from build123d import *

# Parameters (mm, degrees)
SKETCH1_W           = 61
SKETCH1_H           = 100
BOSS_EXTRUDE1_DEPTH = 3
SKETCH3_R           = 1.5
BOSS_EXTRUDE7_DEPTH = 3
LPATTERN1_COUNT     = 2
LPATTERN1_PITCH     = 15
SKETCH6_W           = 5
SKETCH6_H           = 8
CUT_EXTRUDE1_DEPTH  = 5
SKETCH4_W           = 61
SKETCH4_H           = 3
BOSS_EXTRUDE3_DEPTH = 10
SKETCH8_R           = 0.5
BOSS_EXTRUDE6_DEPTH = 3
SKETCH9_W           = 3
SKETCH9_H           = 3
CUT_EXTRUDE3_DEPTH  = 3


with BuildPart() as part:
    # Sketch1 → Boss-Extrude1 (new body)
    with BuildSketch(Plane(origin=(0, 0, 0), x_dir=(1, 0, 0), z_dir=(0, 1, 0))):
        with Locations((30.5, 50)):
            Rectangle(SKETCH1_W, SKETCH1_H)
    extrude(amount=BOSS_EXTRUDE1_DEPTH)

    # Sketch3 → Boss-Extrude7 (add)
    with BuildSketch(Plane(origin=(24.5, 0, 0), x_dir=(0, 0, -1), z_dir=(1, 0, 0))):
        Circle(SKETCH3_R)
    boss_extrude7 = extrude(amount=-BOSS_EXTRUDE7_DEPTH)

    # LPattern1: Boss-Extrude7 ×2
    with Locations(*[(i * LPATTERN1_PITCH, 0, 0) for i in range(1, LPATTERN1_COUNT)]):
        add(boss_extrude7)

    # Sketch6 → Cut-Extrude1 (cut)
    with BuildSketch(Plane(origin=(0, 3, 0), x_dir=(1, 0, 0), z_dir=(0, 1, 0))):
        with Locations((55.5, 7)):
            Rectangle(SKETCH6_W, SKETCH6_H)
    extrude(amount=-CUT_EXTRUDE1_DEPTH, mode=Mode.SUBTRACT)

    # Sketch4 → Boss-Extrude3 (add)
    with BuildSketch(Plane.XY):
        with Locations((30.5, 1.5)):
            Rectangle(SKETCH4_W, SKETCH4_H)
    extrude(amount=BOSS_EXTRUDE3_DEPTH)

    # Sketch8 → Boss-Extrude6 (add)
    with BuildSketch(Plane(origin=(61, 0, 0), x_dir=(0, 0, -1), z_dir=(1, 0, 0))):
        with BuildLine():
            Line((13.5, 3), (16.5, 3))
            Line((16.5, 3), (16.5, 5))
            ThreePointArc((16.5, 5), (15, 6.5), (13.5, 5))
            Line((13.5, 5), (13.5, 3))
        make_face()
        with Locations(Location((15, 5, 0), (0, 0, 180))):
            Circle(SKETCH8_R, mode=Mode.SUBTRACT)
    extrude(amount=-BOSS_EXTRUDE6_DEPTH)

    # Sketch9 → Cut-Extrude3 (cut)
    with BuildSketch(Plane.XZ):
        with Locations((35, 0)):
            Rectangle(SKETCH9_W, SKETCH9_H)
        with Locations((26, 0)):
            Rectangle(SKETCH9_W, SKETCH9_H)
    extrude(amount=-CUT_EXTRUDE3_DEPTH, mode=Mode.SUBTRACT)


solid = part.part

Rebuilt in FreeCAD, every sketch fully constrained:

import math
import FreeCAD as App
import Part
import Sketcher
Q = App.Units.Quantity


def add_polygon(sketch, points):
    """Adds a closed chain of lines whose ends are joined by coincident constraints."""
    first, n = sketch.GeometryCount, len(points)
    for a, b in zip(points, points[1:] + points[:1]):
        sketch.addGeometry(Part.LineSegment(App.Vector(*a, 0), App.Vector(*b, 0)), False)
    for i in range(n):
        sketch.addConstraint(Sketcher.Constraint("Coincident", first + i, 2, first + (i + 1) % n, 1))

doc = App.newDocument("Part")
body = doc.addObject("PartDesign::Body", "Body")

# Sketch on XZ plane
sketch1 = doc.addObject("Sketcher::SketchObject", "Sketch")
body.addObject(sketch1)
sketch1.AttachmentSupport = (doc.XZ_Plane, [""])
sketch1.MapMode = "FlatFace"
add_polygon(sketch1, [(0, -100), (0, 0), (61, 0), (61, -100)])  # lines 0-3
sketch1.addConstraint(Sketcher.Constraint("Vertical", 0))
sketch1.addConstraint(Sketcher.Constraint("Horizontal", 1))
sketch1.addConstraint(Sketcher.Constraint("Vertical", 2))
sketch1.addConstraint(Sketcher.Constraint("Horizontal", 3))
sketch1.addConstraint(Sketcher.Constraint("Coincident", 0, 2, -1, 1))
sketch1.addConstraint(Sketcher.Constraint("DistanceX", 1, 1, 1, 2, Q("61 mm")))
sketch1.addConstraint(Sketcher.Constraint("DistanceY", 0, 1, 0, 2, Q("100 mm")))
pad1 = doc.addObject("PartDesign::Pad", "Pad")
body.addObject(pad1)
pad1.Profile = sketch1
pad1.Length = 3
pad1.Reversed = True

# Sketch on YZ plane
sketch2 = doc.addObject("Sketcher::SketchObject", "Sketch001")
body.addObject(sketch2)
sketch2.AttachmentSupport = (doc.YZ_Plane, [""])
sketch2.MapMode = "FlatFace"
sketch2.AttachmentOffset = App.Placement(App.Vector(0, 0, 24.5), App.Rotation())
sketch2.addGeometry(Part.Circle(App.Vector(0, 0, 0), App.Vector(0, 0, 1), 1.5), False)
sketch2.addConstraint(Sketcher.Constraint("Coincident", 0, 3, -1, 1))
sketch2.addConstraint(Sketcher.Constraint("Diameter", 0, Q("3 mm")))
pad2 = doc.addObject("PartDesign::Pad", "Pad001")
body.addObject(pad2)
pad2.Profile = sketch2
pad2.Length = 3
pad2.Reversed = True
doc.recompute()

linearpattern = doc.addObject("PartDesign::LinearPattern", "LinearPattern")
body.addObject(linearpattern)
linearpattern.Originals = [pad2]
linearpattern.Direction = (doc.X_Axis, [""])
linearpattern.Mode = "offset"
linearpattern.Offset = 15
linearpattern.Occurrences = 2
body.Tip = linearpattern

# Sketch on XZ plane
sketch3 = doc.addObject("Sketcher::SketchObject", "Sketch002")
body.addObject(sketch3)
sketch3.AttachmentSupport = (doc.XZ_Plane, [""])
sketch3.MapMode = "FlatFace"
sketch3.AttachmentOffset = App.Placement(App.Vector(0, 0, -3), App.Rotation())
add_polygon(sketch3, [(53, -11), (53, -3), (58, -3), (58, -11)])  # lines 0-3
sketch3.addConstraint(Sketcher.Constraint("Vertical", 0))
sketch3.addConstraint(Sketcher.Constraint("Horizontal", 1))
sketch3.addConstraint(Sketcher.Constraint("Vertical", 2))
sketch3.addConstraint(Sketcher.Constraint("Horizontal", 3))
sketch3.addConstraint(Sketcher.Constraint("DistanceX", 1, 1, 1, 2, Q("5 mm")))
sketch3.addConstraint(Sketcher.Constraint("DistanceY", 0, 1, 0, 2, Q("8 mm")))
sketch3.addConstraint(Sketcher.Constraint("DistanceX", -1, 1, 0, 2, Q("53 mm")))
sketch3.addConstraint(Sketcher.Constraint("DistanceY", 0, 2, -1, 1, Q("3 mm")))
pocket1 = doc.addObject("PartDesign::Pocket", "Pocket")
body.addObject(pocket1)
pocket1.Profile = sketch3
pocket1.Length = 5
pocket1.Reversed = True

# Sketch on XY plane
sketch4 = doc.addObject("Sketcher::SketchObject", "Sketch003")
body.addObject(sketch4)
sketch4.AttachmentSupport = (doc.XY_Plane, [""])
sketch4.MapMode = "FlatFace"
add_polygon(sketch4, [(0, 3), (0, 0), (61, 0), (61, 3)])  # lines 0-3
sketch4.addConstraint(Sketcher.Constraint("Vertical", 0))
sketch4.addConstraint(Sketcher.Constraint("Horizontal", 1))
sketch4.addConstraint(Sketcher.Constraint("Vertical", 2))
sketch4.addConstraint(Sketcher.Constraint("Horizontal", 3))
sketch4.addConstraint(Sketcher.Constraint("Coincident", 0, 2, -1, 1))
sketch4.addConstraint(Sketcher.Constraint("DistanceX", 1, 1, 1, 2, Q("61 mm")))
sketch4.addConstraint(Sketcher.Constraint("DistanceY", 0, 2, 0, 1, Q("3 mm")))
pad3 = doc.addObject("PartDesign::Pad", "Pad002")
body.addObject(pad3)
pad3.Profile = sketch4
pad3.Length = 10

# Sketch on YZ plane
sketch5 = doc.addObject("Sketcher::SketchObject", "Sketch004")
body.addObject(sketch5)
sketch5.AttachmentSupport = (doc.YZ_Plane, [""])
sketch5.MapMode = "FlatFace"
sketch5.AttachmentOffset = App.Placement(App.Vector(0, 0, 61), App.Rotation())
sketch5.addGeometry(Part.LineSegment(App.Vector(3, -13.5, 0), App.Vector(3, -16.5, 0)), False)
sketch5.addGeometry(Part.LineSegment(App.Vector(3, -16.5, 0), App.Vector(5, -16.5, 0)), False)
sketch5.addGeometry(Part.ArcOfCircle(Part.Circle(App.Vector(5, -15, 0), App.Vector(0, 0, 1), 1.5), math.radians(-90), math.radians(90)), False)
sketch5.addGeometry(Part.LineSegment(App.Vector(5, -13.5, 0), App.Vector(3, -13.5, 0)), False)
sketch5.addGeometry(Part.Circle(App.Vector(5, -15, 0), App.Vector(0, 0, 1), 0.5), False)
sketch5.addConstraint(Sketcher.Constraint("Coincident", 0, 2, 1, 1))
sketch5.addConstraint(Sketcher.Constraint("Tangent", 1, 2, 2, 1))
sketch5.addConstraint(Sketcher.Constraint("Tangent", 2, 2, 3, 1))
sketch5.addConstraint(Sketcher.Constraint("Coincident", 3, 2, 0, 1))
sketch5.addConstraint(Sketcher.Constraint("Vertical", 0))
sketch5.addConstraint(Sketcher.Constraint("Horizontal", 1))
sketch5.addConstraint(Sketcher.Constraint("Horizontal", 3))
sketch5.addConstraint(Sketcher.Constraint("Coincident", 4, 3, 2, 3))
sketch5.addConstraint(Sketcher.Constraint("Diameter", 4, Q("1 mm")))
sketch5.addConstraint(Sketcher.Constraint("Radius", 2, Q("1.5 mm")))
sketch5.addConstraint(Sketcher.Constraint("DistanceX", 1, 1, 1, 2, Q("2 mm")))
sketch5.addConstraint(Sketcher.Constraint("DistanceX", -1, 1, 2, 3, Q("5 mm")))
sketch5.addConstraint(Sketcher.Constraint("DistanceY", 2, 3, -1, 1, Q("15 mm")))
pad4 = doc.addObject("PartDesign::Pad", "Pad003")
body.addObject(pad4)
pad4.Profile = sketch5
pad4.Length = 3
pad4.Reversed = True

# Sketch on XZ plane
sketch6 = doc.addObject("Sketcher::SketchObject", "Sketch005")
body.addObject(sketch6)
sketch6.AttachmentSupport = (doc.XZ_Plane, [""])
sketch6.MapMode = "FlatFace"
add_polygon(sketch6, [(33.5, 1.5), (33.5, -1.5), (36.5, -1.5), (36.5, 1.5)])  # lines 0-3
add_polygon(sketch6, [(24.5, 1.5), (24.5, -1.5), (27.5, -1.5), (27.5, 1.5)])  # lines 4-7
sketch6.addConstraint(Sketcher.Constraint("Vertical", 0))
sketch6.addConstraint(Sketcher.Constraint("Horizontal", 1))
sketch6.addConstraint(Sketcher.Constraint("Vertical", 2))
sketch6.addConstraint(Sketcher.Constraint("Horizontal", 3))
sketch6.addConstraint(Sketcher.Constraint("Vertical", 4))
sketch6.addConstraint(Sketcher.Constraint("Horizontal", 5))
sketch6.addConstraint(Sketcher.Constraint("Vertical", 6))
sketch6.addConstraint(Sketcher.Constraint("Horizontal", 7))
sketch6.addConstraint(Sketcher.Constraint("Horizontal", 1, 2, 4, 2))
sketch6.addConstraint(Sketcher.Constraint("Horizontal", 3, 2, 6, 2))
sketch6.addConstraint(Sketcher.Constraint("Equal", 3, 5))
sketch6.addConstraint(Sketcher.Constraint("Equal", 7, 0))
sketch6.addConstraint(Sketcher.Constraint("DistanceX", 1, 1, 1, 2, Q("3 mm")))
sketch6.addConstraint(Sketcher.Constraint("DistanceX", 4, 2, 0, 2, Q("9 mm")))
sketch6.addConstraint(Sketcher.Constraint("DistanceX", -1, 1, 0, 2, Q("33.5 mm")))
sketch6.addConstraint(Sketcher.Constraint("DistanceY", 0, 2, -1, 1, Q("1.5 mm")))
pocket2 = doc.addObject("PartDesign::Pocket", "Pocket001")
body.addObject(pocket2)
pocket2.Profile = sketch6
pocket2.Length = 3

doc.recompute()
